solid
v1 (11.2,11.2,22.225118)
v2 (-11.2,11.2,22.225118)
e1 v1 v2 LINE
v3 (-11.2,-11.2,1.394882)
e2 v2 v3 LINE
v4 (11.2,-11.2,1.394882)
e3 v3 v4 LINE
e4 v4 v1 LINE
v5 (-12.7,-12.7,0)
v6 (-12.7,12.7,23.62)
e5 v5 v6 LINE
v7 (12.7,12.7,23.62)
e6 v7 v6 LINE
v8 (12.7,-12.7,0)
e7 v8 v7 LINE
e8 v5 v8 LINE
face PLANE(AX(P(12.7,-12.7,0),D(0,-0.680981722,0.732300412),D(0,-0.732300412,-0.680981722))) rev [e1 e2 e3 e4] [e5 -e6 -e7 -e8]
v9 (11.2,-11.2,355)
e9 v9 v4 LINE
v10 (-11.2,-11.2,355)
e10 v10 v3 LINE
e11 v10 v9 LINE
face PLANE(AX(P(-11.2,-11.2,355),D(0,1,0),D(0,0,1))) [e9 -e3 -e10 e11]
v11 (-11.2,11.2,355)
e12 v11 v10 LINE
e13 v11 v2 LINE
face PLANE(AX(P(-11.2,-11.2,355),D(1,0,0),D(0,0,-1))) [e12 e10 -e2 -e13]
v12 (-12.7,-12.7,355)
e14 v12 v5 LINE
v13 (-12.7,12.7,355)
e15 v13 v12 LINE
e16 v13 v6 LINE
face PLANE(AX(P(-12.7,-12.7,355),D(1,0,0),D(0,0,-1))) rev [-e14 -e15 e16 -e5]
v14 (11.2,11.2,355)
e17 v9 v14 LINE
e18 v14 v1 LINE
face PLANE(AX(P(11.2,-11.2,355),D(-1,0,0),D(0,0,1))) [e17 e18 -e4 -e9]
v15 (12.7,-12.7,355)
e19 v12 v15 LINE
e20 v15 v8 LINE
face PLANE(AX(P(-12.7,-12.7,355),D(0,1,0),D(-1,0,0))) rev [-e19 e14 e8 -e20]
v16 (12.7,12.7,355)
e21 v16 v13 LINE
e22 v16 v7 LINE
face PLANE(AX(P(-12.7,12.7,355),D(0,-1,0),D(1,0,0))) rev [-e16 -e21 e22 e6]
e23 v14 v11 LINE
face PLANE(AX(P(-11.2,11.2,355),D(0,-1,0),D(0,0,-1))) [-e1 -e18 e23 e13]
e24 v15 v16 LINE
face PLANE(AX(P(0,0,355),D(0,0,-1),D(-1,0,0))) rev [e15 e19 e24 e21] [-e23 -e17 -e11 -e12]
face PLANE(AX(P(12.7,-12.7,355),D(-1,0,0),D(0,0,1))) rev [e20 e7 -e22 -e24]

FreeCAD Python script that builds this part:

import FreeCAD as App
import Part
import Sketcher
from FreeCAD import Vector

doc = App.newDocument("Part")
params = doc.addObject("Spreadsheet::Sheet", "Params")
for row, (alias, value) in enumerate([
    ("sketch1_width", "25.4 mm"),
    ("sketch1_width2", "22.4 mm"),
    ("pad1_length", "355 mm"),
    ("sketch2_width", "25.4 mm"),
    ("sketch2_height", "23.62 mm"),
    ("pocket1_length", "25.4 mm"),
], start=1):
    params.set(f"A{row}", alias)
    params.set(f"B{row}", "=" + value)
    params.setAlias(f"B{row}", alias)

body = doc.addObject("PartDesign::Body", "Body")

# Sketch on XY plane
sketch1 = body.newObject("Sketcher::SketchObject", "Sketch")
sketch1.AttachmentSupport = (doc.getObject("XY_Plane"), [""])
sketch1.MapMode = "FlatFace"
sketch1.addGeometry([
    Part.LineSegment(Vector(-13, 13, 0), Vector(-13, -13, 0)),  # 0
    Part.LineSegment(Vector(-13, -13, 0), Vector(13, -13, 0)),  # 1
    Part.LineSegment(Vector(13, -13, 0), Vector(13, 13, 0)),  # 2
    Part.LineSegment(Vector(13, 13, 0), Vector(-13, 13, 0)),  # 3
    Part.LineSegment(Vector(11, -11, 0), Vector(-11, -11, 0)),  # 4
    Part.LineSegment(Vector(-11, -11, 0), Vector(-11, 11, 0)),  # 5
    Part.LineSegment(Vector(-11, 11, 0), Vector(11, 11, 0)),  # 6
    Part.LineSegment(Vector(11, 11, 0), Vector(11, -11, 0)),  # 7
], False)
sketch1.addConstraint([
    Sketcher.Constraint("Coincident", 0, 2, 1, 1),
    Sketcher.Constraint("Coincident", 1, 2, 2, 1),
    Sketcher.Constraint("Coincident", 2, 2, 3, 1),
    Sketcher.Constraint("Coincident", 3, 2, 0, 1),
    Sketcher.Constraint("Coincident", 4, 2, 5, 1),
    Sketcher.Constraint("Coincident", 5, 2, 6, 1),
    Sketcher.Constraint("Coincident", 6, 2, 7, 1),
    Sketcher.Constraint("Coincident", 7, 2, 4, 1),
    Sketcher.Constraint("Vertical", 0),
    Sketcher.Constraint("Horizontal", 1),
    Sketcher.Constraint("Vertical", 2),
    Sketcher.Constraint("Horizontal", 3),
    Sketcher.Constraint("Horizontal", 4),
    Sketcher.Constraint("Vertical", 5),
    Sketcher.Constraint("Horizontal", 6),
    Sketcher.Constraint("Vertical", 7),
    Sketcher.Constraint("Symmetric", 0, 2, 2, 2, -1, 1),
    Sketcher.Constraint("Symmetric", 4, 2, 6, 2, -1, 1),
    Sketcher.Constraint("Equal", 3, 0),
    Sketcher.Constraint("Equal", 6, 5),
    Sketcher.Constraint("DistanceX", 1, 1, 1, 2, 25.4),
    Sketcher.Constraint("DistanceX", 4, 2, 4, 1, 22.4),
])
sketch1.setExpression("Constraints[20]", "Params.sketch1_width")
sketch1.setExpression("Constraints[21]", "Params.sketch1_width2")
pad1 = body.newObject("PartDesign::Pad", "Pad")
pad1.Profile = sketch1
pad1.setExpression("Length", "Params.pad1_length")

# Sketch on YZ plane
sketch2 = body.newObject("Sketcher::SketchObject", "Sketch001")
sketch2.AttachmentSupport = (doc.getObject("YZ_Plane"), [""])
sketch2.MapMode = "FlatFace"
sketch2.AttachmentOffset = App.Placement(Vector(0, 0, -12.7), App.Rotation())
sketch2.addGeometry([
    Part.LineSegment(Vector(-13, 0, 0), Vector(13, 24, 0)),
    Part.LineSegment(Vector(13, 24, 0), Vector(13, 0, 0)),
    Part.LineSegment(Vector(13, 0, 0), Vector(-13, 0, 0)),
], False)
sketch2.addConstraint([
    Sketcher.Constraint("Coincident", 0, 2, 1, 1),
    Sketcher.Constraint("Coincident", 1, 2, 2, 1),
    Sketcher.Constraint("Coincident", 2, 2, 0, 1),
    Sketcher.Constraint("Vertical", 1),
    Sketcher.Constraint("Horizontal", 2),
    Sketcher.Constraint("Symmetric", 1, 2, 2, 2, -1, 1),
    Sketcher.Constraint("DistanceX", 2, 2, 2, 1, 25.4),
    Sketcher.Constraint("DistanceY", 1, 2, 1, 1, 23.62),
])
sketch2.setExpression("Constraints[6]", "Params.sketch2_width")
sketch2.setExpression("Constraints[7]", "Params.sketch2_height")
pocket1 = body.newObject("PartDesign::Pocket", "Pocket")
pocket1.Profile = sketch2
pocket1.setExpression("Length", "Params.pocket1_length")
pocket1.Reversed = True

doc.recompute()
